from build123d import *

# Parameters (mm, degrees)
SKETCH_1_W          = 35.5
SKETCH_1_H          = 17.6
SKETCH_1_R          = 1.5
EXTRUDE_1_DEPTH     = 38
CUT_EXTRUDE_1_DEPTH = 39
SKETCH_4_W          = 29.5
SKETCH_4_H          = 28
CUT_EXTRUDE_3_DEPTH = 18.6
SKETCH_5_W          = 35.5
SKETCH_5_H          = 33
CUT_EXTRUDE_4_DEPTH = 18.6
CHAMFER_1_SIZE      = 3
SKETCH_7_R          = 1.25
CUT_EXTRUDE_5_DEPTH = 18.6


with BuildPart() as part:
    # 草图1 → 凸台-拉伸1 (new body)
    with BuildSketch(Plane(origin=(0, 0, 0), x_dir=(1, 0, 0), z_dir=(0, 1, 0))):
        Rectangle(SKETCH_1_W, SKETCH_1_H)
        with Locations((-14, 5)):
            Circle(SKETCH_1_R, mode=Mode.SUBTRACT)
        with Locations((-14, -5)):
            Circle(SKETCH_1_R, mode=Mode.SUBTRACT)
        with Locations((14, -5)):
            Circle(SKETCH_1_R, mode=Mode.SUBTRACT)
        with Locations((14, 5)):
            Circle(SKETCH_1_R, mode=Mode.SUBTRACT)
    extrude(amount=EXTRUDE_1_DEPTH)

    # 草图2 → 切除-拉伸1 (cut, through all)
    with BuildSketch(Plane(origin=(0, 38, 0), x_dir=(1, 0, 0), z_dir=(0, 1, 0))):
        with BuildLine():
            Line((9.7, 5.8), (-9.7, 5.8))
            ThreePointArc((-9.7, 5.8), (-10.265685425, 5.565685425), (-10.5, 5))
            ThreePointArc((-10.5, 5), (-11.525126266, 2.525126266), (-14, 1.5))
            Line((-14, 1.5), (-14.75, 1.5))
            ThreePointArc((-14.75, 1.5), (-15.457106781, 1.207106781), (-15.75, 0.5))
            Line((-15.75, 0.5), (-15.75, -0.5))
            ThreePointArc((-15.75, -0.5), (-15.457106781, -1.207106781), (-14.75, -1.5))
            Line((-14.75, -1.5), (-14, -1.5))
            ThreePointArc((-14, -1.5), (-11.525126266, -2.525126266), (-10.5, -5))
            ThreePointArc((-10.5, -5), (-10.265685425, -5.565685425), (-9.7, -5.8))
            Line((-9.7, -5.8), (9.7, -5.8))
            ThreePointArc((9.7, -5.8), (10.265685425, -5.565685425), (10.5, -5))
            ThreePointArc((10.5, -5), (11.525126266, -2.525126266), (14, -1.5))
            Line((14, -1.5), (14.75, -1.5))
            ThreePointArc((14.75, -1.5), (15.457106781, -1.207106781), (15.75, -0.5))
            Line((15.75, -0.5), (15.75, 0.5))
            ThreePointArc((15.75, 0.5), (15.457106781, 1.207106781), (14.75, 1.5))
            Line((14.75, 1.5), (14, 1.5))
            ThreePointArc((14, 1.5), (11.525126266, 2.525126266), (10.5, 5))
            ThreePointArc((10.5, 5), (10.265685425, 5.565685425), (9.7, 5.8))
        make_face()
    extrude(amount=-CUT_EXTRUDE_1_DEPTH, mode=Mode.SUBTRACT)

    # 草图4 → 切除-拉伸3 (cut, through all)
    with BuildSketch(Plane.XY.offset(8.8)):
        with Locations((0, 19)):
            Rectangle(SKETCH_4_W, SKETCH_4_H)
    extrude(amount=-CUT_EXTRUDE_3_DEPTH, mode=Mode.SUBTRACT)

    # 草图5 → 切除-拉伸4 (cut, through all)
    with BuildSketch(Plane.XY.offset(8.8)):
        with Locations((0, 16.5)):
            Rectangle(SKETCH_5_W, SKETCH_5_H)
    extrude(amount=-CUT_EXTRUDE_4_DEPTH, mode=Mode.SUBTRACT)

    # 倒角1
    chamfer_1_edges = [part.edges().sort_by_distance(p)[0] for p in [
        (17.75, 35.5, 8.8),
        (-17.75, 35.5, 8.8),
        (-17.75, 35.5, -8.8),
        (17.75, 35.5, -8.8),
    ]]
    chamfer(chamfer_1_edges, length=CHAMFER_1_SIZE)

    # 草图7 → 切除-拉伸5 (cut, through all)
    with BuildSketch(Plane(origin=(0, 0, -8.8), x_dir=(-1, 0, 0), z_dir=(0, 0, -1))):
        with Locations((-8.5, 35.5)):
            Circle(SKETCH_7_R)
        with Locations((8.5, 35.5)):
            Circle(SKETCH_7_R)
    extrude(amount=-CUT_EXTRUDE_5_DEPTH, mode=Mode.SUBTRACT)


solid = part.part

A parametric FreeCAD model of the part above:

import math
import FreeCAD as App
import Part
import Sketcher

V = App.Vector


def edges_at(feature, points):
    """Names of the edges that pass closest to the given points."""
    edges = feature.Shape.Edges
    near = lambda p: min(range(len(edges)), key=lambda i: edges[i].distToShape(Part.Vertex(*p))[0])
    return sorted({f"Edge{near(p) + 1}" for p in points})

doc = App.newDocument("Part")
params = doc.addObject("Spreadsheet::Sheet", "Params")
for row, (alias, value) in enumerate([
    ("sketch1_diameter", "3 mm"),
    ("sketch1_width", "35.5 mm"),
    ("sketch1_height", "17.6 mm"),
    ("pad1_length", "38 mm"),
    ("sketch2_radius", "1 mm"),
    ("sketch2_radius2", "0.8 mm"),
    ("sketch2_radius3", "3.5 mm"),
    ("sketch2_height", "1 mm"),
    ("sketch2_width", "19.4 mm"),
    ("sketch3_height", "28 mm"),
    ("sketch3_width", "29.5 mm"),
    ("sketch4_height", "33 mm"),
    ("sketch4_width", "35.5 mm"),
    ("chamfer_size", "3 mm"),
    ("sketch5_diameter", "2.5 mm"),
], start=1):
    params.set(f"A{row}", alias)
    params.set(f"B{row}", "=" + value)
    params.setAlias(f"B{row}", alias)

body = doc.addObject("PartDesign::Body", "Body")

# Sketch on XZ plane
sketch1 = doc.addObject("Sketcher::SketchObject", "Sketch")
body.addObject(sketch1)
sketch1.AttachmentSupport = (doc.XZ_Plane, [""])
sketch1.MapMode = "FlatFace"
sketch1.addGeometry(Part.LineSegment(V(-17.8, -8.8, 0), V(-17.8, 8.8, 0)), False)
sketch1.addGeometry(Part.LineSegment(V(-17.8, 8.8, 0), V(17.8, 8.8, 0)), False)
sketch1.addGeometry(Part.LineSegment(V(17.8, 8.8, 0), V(17.8, -8.8, 0)), False)
sketch1.addGeometry(Part.LineSegment(V(17.8, -8.8, 0), V(-17.8, -8.8, 0)), False)
sketch1.addGeometry(Part.Circle(V(-14, 5, 0), V(0, 0, 1), 1.5), False)
sketch1.addGeometry(Part.Circle(V(14, 5, 0), V(0, 0, 1), 1.5), False)
sketch1.addGeometry(Part.Circle(V(-14, -5, 0), V(0, 0, 1), 1.5), False)
sketch1.addGeometry(Part.Circle(V(14, -5, 0), V(0, 0, 1), 1.5), False)
sketch1.addConstraint(Sketcher.Constraint("Coincident", 0, 2, 1, 1))
sketch1.addConstraint(Sketcher.Constraint("Coincident", 1, 2, 2, 1))
sketch1.addConstraint(Sketcher.Constraint("Coincident", 2, 2, 3, 1))
sketch1.addConstraint(Sketcher.Constraint("Coincident", 3, 2, 0, 1))
sketch1.addConstraint(Sketcher.Constraint("Vertical", 0))
sketch1.addConstraint(Sketcher.Constraint("Horizontal", 1))
sketch1.addConstraint(Sketcher.Constraint("Vertical", 2))
sketch1.addConstraint(Sketcher.Constraint("Horizontal", 3))
sketch1.addConstraint(Sketcher.Constraint("Equal", 4, 5))
sketch1.addConstraint(Sketcher.Constraint("Equal", 5, 6))
sketch1.addConstraint(Sketcher.Constraint("Equal", 6, 7))
sketch1.addConstraint(Sketcher.Constraint("Symmetric", 5, 3, 6, 3, -1, 1))
sketch1.addConstraint(Sketcher.Constraint("Symmetric", 4, 3, 7, 3, -1, 1))
sketch1.addConstraint(Sketcher.Constraint("Symmetric", 0, 2, 2, 2, -1, 1))
sketch1.addConstraint(Sketcher.Constraint("Symmetric", 4, 3, 5, 3, -2))
sketch1.addConstraint(Sketcher.Constraint("Diameter", 4, 3.0))
sketch1.addConstraint(Sketcher.Constraint("DistanceX", 1, 1, 1, 2, 35.5))
sketch1.addConstraint(Sketcher.Constraint("DistanceY", 0, 1, 0, 2, 17.6))
sketch1.addConstraint(Sketcher.Constraint("DistanceX", 4, 3, -1, 1, 14.0))
sketch1.addConstraint(Sketcher.Constraint("DistanceY", -1, 1, 4, 3, 5.0))
sketch1.setExpression("Constraints[15]", "Params.sketch1_diameter")
sketch1.setExpression("Constraints[16]", "Params.sketch1_width")
sketch1.setExpression("Constraints[17]", "Params.sketch1_height")
pad1 = doc.addObject("PartDesign::Pad", "Pad")
body.addObject(pad1)
pad1.Profile = sketch1
pad1.setExpression("Length", "Params.pad1_length")
pad1.Reversed = True

# Sketch on XZ plane
sketch2 = doc.addObject("Sketcher::SketchObject", "Sketch001")
body.addObject(sketch2)
sketch2.AttachmentSupport = (doc.XZ_Plane, [""])
sketch2.MapMode = "FlatFace"
sketch2.AttachmentOffset = App.Placement(V(0, 0, -38), App.Rotation())
sketch2.addGeometry(Part.LineSegment(V(9.7, -5.8, 0), V(-9.7, -5.8, 0)), False)
sketch2.addGeometry(Part.ArcOfCircle(Part.Circle(V(-9.7, -5, 0), V(0, 0, 1), 0.8), math.radians(180), math.radians(270)), False)
sketch2.addGeometry(Part.ArcOfCircle(Part.Circle(V(-14, -5, 0), V(0, 0, 1), 3.5), math.radians(0), math.radians(90)), False)
sketch2.addGeometry(Part.LineSegment(V(-14, -1.5, 0), V(-14.8, -1.5, 0)), False)
sketch2.addGeometry(Part.ArcOfCircle(Part.Circle(V(-14.7, -0.5, 0), V(0, 0, 1), 1), math.radians(-180), math.radians(-90)), False)
sketch2.addGeometry(Part.LineSegment(V(-15.8, -0.5, 0), V(-15.8, 0.5, 0)), False)
sketch2.addGeometry(Part.ArcOfCircle(Part.Circle(V(-14.7, 0.5, 0), V(0, 0, 1), 1), math.radians(90), math.radians(180)), False)
sketch2.addGeometry(Part.LineSegment(V(-14.8, 1.5, 0), V(-14, 1.5, 0)), False)
sketch2.addGeometry(Part.ArcOfCircle(Part.Circle(V(-14, 5, 0), V(0, 0, 1), 3.5), math.radians(-90), math.radians(0)), False)
sketch2.addGeometry(Part.ArcOfCircle(Part.Circle(V(-9.7, 5, 0), V(0, 0, 1), 0.8), math.radians(90), math.radians(180)), False)
sketch2.addGeometry(Part.LineSegment(V(-9.7, 5.8, 0), V(9.7, 5.8, 0)), False)
sketch2.addGeometry(Part.ArcOfCircle(Part.Circle(V(9.7, 5, 0), V(0, 0, 1), 0.8), math.radians(0), math.radians(90)), False)
sketch2.addGeometry(Part.ArcOfCircle(Part.Circle(V(14, 5, 0), V(0, 0, 1), 3.5), math.radians(-180), math.radians(-90)), False)
sketch2.addGeometry(Part.LineSegment(V(14, 1.5, 0), V(14.8, 1.5, 0)), False)
sketch2.addGeometry(Part.ArcOfCircle(Part.Circle(V(14.7, 0.5, 0), V(0, 0, 1), 1), math.radians(0), math.radians(90)), False)
sketch2.addGeometry(Part.LineSegment(V(15.8, 0.5, 0), V(15.8, -0.5, 0)), False)
sketch2.addGeometry(Part.ArcOfCircle(Part.Circle(V(14.7, -0.5, 0), V(0, 0, 1), 1), math.radians(-90), math.radians(0)), False)
sketch2.addGeometry(Part.LineSegment(V(14.8, -1.5, 0), V(14, -1.5, 0)), False)
sketch2.addGeometry(Part.ArcOfCircle(Part.Circle(V(14, -5, 0), V(0, 0, 1), 3.5), math.radians(90), math.radians(180)), False)
sketch2.addGeometry(Part.ArcOfCircle(Part.Circle(V(9.7, -5, 0), V(0, 0, 1), 0.8), math.radians(-90), math.radians(0)), False)
sketch2.addConstraint(Sketcher.Constraint("Tangent", 0, 2, 1, 2))
sketch2.addConstraint(Sketcher.Constraint("Tangent", 1, 1, 2, 1))
sketch2.addConstraint(Sketcher.Constraint("Tangent", 2, 2, 3, 1))
sketch2.addConstraint(Sketcher.Constraint("Tangent", 3, 2, 4, 2))
sketch2.addConstraint(Sketcher.Constraint("Tangent", 4, 1, 5, 1))
sketch2.addConstraint(Sketcher.Constraint("Tangent", 5, 2, 6, 2))
sketch2.addConstraint(Sketcher.Constraint("Tangent", 6, 1, 7, 1))
sketch2.addConstraint(Sketcher.Constraint("Tangent", 7, 2, 8, 1))
sketch2.addConstraint(Sketcher.Constraint("Tangent", 8, 2, 9, 2))
sketch2.addConstraint(Sketcher.Constraint("Tangent", 9, 1, 10, 1))
sketch2.addConstraint(Sketcher.Constraint("Tangent", 10, 2, 11, 2))
sketch2.addConstraint(Sketcher.Constraint("Tangent", 11, 1, 12, 1))
sketch2.addConstraint(Sketcher.Constraint("Tangent", 12, 2, 13, 1))
sketch2.addConstraint(Sketcher.Constraint("Tangent", 13, 2, 14, 2))
sketch2.addConstraint(Sketcher.Constraint("Tangent", 14, 1, 15, 1))
sketch2.addConstraint(Sketcher.Constraint("Tangent", 15, 2, 16, 2))
sketch2.addConstraint(Sketcher.Constraint("Tangent", 16, 1, 17, 1))
sketch2.addConstraint(Sketcher.Constraint("Tangent", 17, 2, 18, 1))
sketch2.addConstraint(Sketcher.Constraint("Tangent", 18, 2, 19, 2))
sketch2.addConstraint(Sketcher.Constraint("Tangent", 19, 1, 0, 1))
sketch2.addConstraint(Sketcher.Constraint("Horizontal", 0))
sketch2.addConstraint(Sketcher.Constraint("Horizontal", 3))
sketch2.addConstraint(Sketcher.Constraint("Vertical", 5))
sketch2.addConstraint(Sketcher.Constraint("Horizontal", 7))
sketch2.addConstraint(Sketcher.Constraint("Horizontal", 10))
sketch2.addConstraint(Sketcher.Constraint("Horizontal", 13))
sketch2.addConstraint(Sketcher.Constraint("Vertical", 15))
sketch2.addConstraint(Sketcher.Constraint("Horizontal", 17))
sketch2.addConstraint(Sketcher.Constraint("Equal", 4, 6))
sketch2.addConstraint(Sketcher.Constraint("Equal", 2, 8))
sketch2.addConstraint(Sketcher.Constraint("Equal", 1, 9))
sketch2.addConstraint(Sketcher.Constraint("Equal", 9, 11))
sketch2.addConstraint(Sketcher.Constraint("Equal", 8, 12))
sketch2.addConstraint(Sketcher.Constraint("Equal", 6, 14))
sketch2.addConstraint(Sketcher.Constraint("Equal", 14, 16))
sketch2.addConstraint(Sketcher.Constraint("Equal", 12, 18))
sketch2.addConstraint(Sketcher.Constraint("Equal", 11, 19))
sketch2.addConstraint(Sketcher.Constraint("Symmetric", 1, 3, 11, 3, -1, 1))
sketch2.addConstraint(Sketcher.Constraint("Symmetric", 4, 3, 14, 3, -1, 1))
sketch2.addConstraint(Sketcher.Constraint("Symmetric", 8, 3, 18, 3, -1, 1))
sketch2.addConstraint(Sketcher.Constraint("Symmetric", 8, 3, 12, 3, -2))
sketch2.addConstraint(Sketcher.Constraint("Horizontal", 1, 3, 2, 3))
sketch2.addConstraint(Sketcher.Constraint("Radius", 4, 1.0))
sketch2.addConstraint(Sketcher.Constraint("Radius", 1, 0.8))
sketch2.addConstraint(Sketcher.Constraint("Radius", 2, 3.5))
sketch2.addConstraint(Sketcher.Constraint("DistanceY", 5, 1, 5, 2, 1.0))
sketch2.addConstraint(Sketcher.Constraint("DistanceX", 0, 2, 0, 1, 19.4))
sketch2.addConstraint(Sketcher.Constraint("DistanceX", 3, 2, 3, 1, 0.75))
sketch2.setExpression("Constraints[42]", "Params.sketch2_radius")
sketch2.setExpression("Constraints[43]", "Params.sketch2_radius2")
sketch2.setExpression("Constraints[44]", "Params.sketch2_radius3")
sketch2.setExpression("Constraints[45]", "Params.sketch2_height")
sketch2.setExpression("Constraints[46]", "Params.sketch2_width")
pocket1 = doc.addObject("PartDesign::Pocket", "Pocket")
body.addObject(pocket1)
pocket1.Profile = sketch2
pocket1.Type = "ThroughAll"
pocket1.Reversed = True

# Sketch on XY plane
sketch3 = doc.addObject("Sketcher::SketchObject", "Sketch002")
body.addObject(sketch3)
sketch3.AttachmentSupport = (doc.XY_Plane, [""])
sketch3.MapMode = "FlatFace"
sketch3.AttachmentOffset = App.Placement(V(0, 0, 8.8), App.Rotation())
sketch3.addGeometry(Part.LineSegment(V(-15, 33, 0), V(-15, 5, 0)), False)
sketch3.addGeometry(Part.LineSegment(V(-15, 5, 0), V(15, 5, 0)), False)
sketch3.addGeometry(Part.LineSegment(V(15, 5, 0), V(15, 33, 0)), False)
sketch3.addGeometry(Part.LineSegment(V(15, 33, 0), V(-15, 33, 0)), False)
sketch3.addConstraint(Sketcher.Constraint("Coincident", 0, 2, 1, 1))
sketch3.addConstraint(Sketcher.Constraint("Coincident", 1, 2, 2, 1))
sketch3.addConstraint(Sketcher.Constraint("Coincident", 2, 2, 3, 1))
sketch3.addConstraint(Sketcher.Constraint("Coincident", 3, 2, 0, 1))
sketch3.addConstraint(Sketcher.Constraint("Vertical", 0))
sketch3.addConstraint(Sketcher.Constraint("Horizontal", 1))
sketch3.addConstraint(Sketcher.Constraint("Vertical", 2))
sketch3.addConstraint(Sketcher.Constraint("Horizontal", 3))
sketch3.addConstraint(Sketcher.Constraint("DistanceY", 0, 2, 0, 1, 28.0))
sketch3.addConstraint(Sketcher.Constraint("DistanceX", 1, 1, 1, 2, 29.5))
sketch3.addConstraint(Sketcher.Constraint("DistanceY", -1, 1, 0, 2, 5.0))
sketch3.addConstraint(Sketcher.Constraint("DistanceX", 0, 2, -1, 1, 14.75))
sketch3.setExpression("Constraints[8]", "Params.sketch3_height")
sketch3.setExpression("Constraints[9]", "Params.sketch3_width")
pocket2 = doc.addObject("PartDesign::Pocket", "Pocket001")
body.addObject(pocket2)
pocket2.Profile = sketch3
pocket2.Type = "ThroughAll"

# Sketch on XY plane
sketch4 = doc.addObject("Sketcher::SketchObject", "Sketch003")
body.addObject(sketch4)
sketch4.AttachmentSupport = (doc.XY_Plane, [""])
sketch4.MapMode = "FlatFace"
sketch4.AttachmentOffset = App.Placement(V(0, 0, 8.8), App.Rotation())
sketch4.addGeometry(Part.LineSegment(V(-18, 33, 0), V(-18, 0, 0)), False)
sketch4.addGeometry(Part.LineSegment(V(-18, 0, 0), V(18, 0, 0)), False)
sketch4.addGeometry(Part.LineSegment(V(18, 0, 0), V(18, 33, 0)), False)
sketch4.addGeometry(Part.LineSegment(V(18, 33, 0), V(-18, 33, 0)), False)
sketch4.addConstraint(Sketcher.Constraint("Coincident", 0, 2, 1, 1))
sketch4.addConstraint(Sketcher.Constraint("Coincident", 1, 2, 2, 1))
sketch4.addConstraint(Sketcher.Constraint("Coincident", 2, 2, 3, 1))
sketch4.addConstraint(Sketcher.Constraint("Coincident", 3, 2, 0, 1))
sketch4.addConstraint(Sketcher.Constraint("Vertical", 0))
sketch4.addConstraint(Sketcher.Constraint("Horizontal", 1))
sketch4.addConstraint(Sketcher.Constraint("Vertical", 2))
sketch4.addConstraint(Sketcher.Constraint("Horizontal", 3))
sketch4.addConstraint(Sketcher.Constraint("Symmetric", 0, 2, 1, 2, -1, 1))
sketch4.addConstraint(Sketcher.Constraint("DistanceY", 0, 2, 0, 1, 33.0))
sketch4.addConstraint(Sketcher.Constraint("DistanceX", 1, 1, 1, 2, 35.5))
sketch4.setExpression("Constraints[9]", "Params.sketch4_height")
sketch4.setExpression("Constraints[10]", "Params.sketch4_width")
pocket3 = doc.addObject("PartDesign::Pocket", "Pocket002")
body.addObject(pocket3)
pocket3.Profile = sketch4
pocket3.Type = "ThroughAll"
doc.recompute()

chamfer = doc.addObject("PartDesign::Chamfer", "Chamfer")
body.addObject(chamfer)
chamfer.Base = (pocket3, edges_at(pocket3, [
    (17.75, 35.5, 8.8),
    (-17.75, 35.5, 8.8),
    (-17.75, 35.5, -8.8),
    (17.75, 35.5, -8.8),
]))
chamfer.setExpression("Size", "Params.chamfer_size")

# Sketch on XY plane
sketch5 = doc.addObject("Sketcher::SketchObject", "Sketch004")
body.addObject(sketch5)
sketch5.AttachmentSupport = (doc.XY_Plane, [""])
sketch5.MapMode = "FlatFace"
sketch5.AttachmentOffset = App.Placement(V(0, 0, -8.8), App.Rotation())
sketch5.addGeometry(Part.Circle(V(8.5, 35.5, 0), V(0, 0, 1), 1.2), False)
sketch5.addGeometry(Part.Circle(V(-8.5, 35.5, 0), V(0, 0, 1), 1.2), False)
sketch5.addConstraint(Sketcher.Constraint("Equal", 0, 1))
sketch5.addConstraint(Sketcher.Constraint("Symmetric", 0, 3, 1, 3, -2))
sketch5.addConstraint(Sketcher.Constraint("Diameter", 0, 2.5))
sketch5.addConstraint(Sketcher.Constraint("DistanceX", 1, 3, 0, 3, 17.0))
sketch5.addConstraint(Sketcher.Constraint("DistanceY", -1, 1, 0, 3, 35.5))
sketch5.setExpression("Constraints[2]", "Params.sketch5_diameter")
pocket4 = doc.addObject("PartDesign::Pocket", "Pocket003")
body.addObject(pocket4)
pocket4.Profile = sketch5
pocket4.Type = "ThroughAll"
pocket4.Reversed = True

doc.recompute()
